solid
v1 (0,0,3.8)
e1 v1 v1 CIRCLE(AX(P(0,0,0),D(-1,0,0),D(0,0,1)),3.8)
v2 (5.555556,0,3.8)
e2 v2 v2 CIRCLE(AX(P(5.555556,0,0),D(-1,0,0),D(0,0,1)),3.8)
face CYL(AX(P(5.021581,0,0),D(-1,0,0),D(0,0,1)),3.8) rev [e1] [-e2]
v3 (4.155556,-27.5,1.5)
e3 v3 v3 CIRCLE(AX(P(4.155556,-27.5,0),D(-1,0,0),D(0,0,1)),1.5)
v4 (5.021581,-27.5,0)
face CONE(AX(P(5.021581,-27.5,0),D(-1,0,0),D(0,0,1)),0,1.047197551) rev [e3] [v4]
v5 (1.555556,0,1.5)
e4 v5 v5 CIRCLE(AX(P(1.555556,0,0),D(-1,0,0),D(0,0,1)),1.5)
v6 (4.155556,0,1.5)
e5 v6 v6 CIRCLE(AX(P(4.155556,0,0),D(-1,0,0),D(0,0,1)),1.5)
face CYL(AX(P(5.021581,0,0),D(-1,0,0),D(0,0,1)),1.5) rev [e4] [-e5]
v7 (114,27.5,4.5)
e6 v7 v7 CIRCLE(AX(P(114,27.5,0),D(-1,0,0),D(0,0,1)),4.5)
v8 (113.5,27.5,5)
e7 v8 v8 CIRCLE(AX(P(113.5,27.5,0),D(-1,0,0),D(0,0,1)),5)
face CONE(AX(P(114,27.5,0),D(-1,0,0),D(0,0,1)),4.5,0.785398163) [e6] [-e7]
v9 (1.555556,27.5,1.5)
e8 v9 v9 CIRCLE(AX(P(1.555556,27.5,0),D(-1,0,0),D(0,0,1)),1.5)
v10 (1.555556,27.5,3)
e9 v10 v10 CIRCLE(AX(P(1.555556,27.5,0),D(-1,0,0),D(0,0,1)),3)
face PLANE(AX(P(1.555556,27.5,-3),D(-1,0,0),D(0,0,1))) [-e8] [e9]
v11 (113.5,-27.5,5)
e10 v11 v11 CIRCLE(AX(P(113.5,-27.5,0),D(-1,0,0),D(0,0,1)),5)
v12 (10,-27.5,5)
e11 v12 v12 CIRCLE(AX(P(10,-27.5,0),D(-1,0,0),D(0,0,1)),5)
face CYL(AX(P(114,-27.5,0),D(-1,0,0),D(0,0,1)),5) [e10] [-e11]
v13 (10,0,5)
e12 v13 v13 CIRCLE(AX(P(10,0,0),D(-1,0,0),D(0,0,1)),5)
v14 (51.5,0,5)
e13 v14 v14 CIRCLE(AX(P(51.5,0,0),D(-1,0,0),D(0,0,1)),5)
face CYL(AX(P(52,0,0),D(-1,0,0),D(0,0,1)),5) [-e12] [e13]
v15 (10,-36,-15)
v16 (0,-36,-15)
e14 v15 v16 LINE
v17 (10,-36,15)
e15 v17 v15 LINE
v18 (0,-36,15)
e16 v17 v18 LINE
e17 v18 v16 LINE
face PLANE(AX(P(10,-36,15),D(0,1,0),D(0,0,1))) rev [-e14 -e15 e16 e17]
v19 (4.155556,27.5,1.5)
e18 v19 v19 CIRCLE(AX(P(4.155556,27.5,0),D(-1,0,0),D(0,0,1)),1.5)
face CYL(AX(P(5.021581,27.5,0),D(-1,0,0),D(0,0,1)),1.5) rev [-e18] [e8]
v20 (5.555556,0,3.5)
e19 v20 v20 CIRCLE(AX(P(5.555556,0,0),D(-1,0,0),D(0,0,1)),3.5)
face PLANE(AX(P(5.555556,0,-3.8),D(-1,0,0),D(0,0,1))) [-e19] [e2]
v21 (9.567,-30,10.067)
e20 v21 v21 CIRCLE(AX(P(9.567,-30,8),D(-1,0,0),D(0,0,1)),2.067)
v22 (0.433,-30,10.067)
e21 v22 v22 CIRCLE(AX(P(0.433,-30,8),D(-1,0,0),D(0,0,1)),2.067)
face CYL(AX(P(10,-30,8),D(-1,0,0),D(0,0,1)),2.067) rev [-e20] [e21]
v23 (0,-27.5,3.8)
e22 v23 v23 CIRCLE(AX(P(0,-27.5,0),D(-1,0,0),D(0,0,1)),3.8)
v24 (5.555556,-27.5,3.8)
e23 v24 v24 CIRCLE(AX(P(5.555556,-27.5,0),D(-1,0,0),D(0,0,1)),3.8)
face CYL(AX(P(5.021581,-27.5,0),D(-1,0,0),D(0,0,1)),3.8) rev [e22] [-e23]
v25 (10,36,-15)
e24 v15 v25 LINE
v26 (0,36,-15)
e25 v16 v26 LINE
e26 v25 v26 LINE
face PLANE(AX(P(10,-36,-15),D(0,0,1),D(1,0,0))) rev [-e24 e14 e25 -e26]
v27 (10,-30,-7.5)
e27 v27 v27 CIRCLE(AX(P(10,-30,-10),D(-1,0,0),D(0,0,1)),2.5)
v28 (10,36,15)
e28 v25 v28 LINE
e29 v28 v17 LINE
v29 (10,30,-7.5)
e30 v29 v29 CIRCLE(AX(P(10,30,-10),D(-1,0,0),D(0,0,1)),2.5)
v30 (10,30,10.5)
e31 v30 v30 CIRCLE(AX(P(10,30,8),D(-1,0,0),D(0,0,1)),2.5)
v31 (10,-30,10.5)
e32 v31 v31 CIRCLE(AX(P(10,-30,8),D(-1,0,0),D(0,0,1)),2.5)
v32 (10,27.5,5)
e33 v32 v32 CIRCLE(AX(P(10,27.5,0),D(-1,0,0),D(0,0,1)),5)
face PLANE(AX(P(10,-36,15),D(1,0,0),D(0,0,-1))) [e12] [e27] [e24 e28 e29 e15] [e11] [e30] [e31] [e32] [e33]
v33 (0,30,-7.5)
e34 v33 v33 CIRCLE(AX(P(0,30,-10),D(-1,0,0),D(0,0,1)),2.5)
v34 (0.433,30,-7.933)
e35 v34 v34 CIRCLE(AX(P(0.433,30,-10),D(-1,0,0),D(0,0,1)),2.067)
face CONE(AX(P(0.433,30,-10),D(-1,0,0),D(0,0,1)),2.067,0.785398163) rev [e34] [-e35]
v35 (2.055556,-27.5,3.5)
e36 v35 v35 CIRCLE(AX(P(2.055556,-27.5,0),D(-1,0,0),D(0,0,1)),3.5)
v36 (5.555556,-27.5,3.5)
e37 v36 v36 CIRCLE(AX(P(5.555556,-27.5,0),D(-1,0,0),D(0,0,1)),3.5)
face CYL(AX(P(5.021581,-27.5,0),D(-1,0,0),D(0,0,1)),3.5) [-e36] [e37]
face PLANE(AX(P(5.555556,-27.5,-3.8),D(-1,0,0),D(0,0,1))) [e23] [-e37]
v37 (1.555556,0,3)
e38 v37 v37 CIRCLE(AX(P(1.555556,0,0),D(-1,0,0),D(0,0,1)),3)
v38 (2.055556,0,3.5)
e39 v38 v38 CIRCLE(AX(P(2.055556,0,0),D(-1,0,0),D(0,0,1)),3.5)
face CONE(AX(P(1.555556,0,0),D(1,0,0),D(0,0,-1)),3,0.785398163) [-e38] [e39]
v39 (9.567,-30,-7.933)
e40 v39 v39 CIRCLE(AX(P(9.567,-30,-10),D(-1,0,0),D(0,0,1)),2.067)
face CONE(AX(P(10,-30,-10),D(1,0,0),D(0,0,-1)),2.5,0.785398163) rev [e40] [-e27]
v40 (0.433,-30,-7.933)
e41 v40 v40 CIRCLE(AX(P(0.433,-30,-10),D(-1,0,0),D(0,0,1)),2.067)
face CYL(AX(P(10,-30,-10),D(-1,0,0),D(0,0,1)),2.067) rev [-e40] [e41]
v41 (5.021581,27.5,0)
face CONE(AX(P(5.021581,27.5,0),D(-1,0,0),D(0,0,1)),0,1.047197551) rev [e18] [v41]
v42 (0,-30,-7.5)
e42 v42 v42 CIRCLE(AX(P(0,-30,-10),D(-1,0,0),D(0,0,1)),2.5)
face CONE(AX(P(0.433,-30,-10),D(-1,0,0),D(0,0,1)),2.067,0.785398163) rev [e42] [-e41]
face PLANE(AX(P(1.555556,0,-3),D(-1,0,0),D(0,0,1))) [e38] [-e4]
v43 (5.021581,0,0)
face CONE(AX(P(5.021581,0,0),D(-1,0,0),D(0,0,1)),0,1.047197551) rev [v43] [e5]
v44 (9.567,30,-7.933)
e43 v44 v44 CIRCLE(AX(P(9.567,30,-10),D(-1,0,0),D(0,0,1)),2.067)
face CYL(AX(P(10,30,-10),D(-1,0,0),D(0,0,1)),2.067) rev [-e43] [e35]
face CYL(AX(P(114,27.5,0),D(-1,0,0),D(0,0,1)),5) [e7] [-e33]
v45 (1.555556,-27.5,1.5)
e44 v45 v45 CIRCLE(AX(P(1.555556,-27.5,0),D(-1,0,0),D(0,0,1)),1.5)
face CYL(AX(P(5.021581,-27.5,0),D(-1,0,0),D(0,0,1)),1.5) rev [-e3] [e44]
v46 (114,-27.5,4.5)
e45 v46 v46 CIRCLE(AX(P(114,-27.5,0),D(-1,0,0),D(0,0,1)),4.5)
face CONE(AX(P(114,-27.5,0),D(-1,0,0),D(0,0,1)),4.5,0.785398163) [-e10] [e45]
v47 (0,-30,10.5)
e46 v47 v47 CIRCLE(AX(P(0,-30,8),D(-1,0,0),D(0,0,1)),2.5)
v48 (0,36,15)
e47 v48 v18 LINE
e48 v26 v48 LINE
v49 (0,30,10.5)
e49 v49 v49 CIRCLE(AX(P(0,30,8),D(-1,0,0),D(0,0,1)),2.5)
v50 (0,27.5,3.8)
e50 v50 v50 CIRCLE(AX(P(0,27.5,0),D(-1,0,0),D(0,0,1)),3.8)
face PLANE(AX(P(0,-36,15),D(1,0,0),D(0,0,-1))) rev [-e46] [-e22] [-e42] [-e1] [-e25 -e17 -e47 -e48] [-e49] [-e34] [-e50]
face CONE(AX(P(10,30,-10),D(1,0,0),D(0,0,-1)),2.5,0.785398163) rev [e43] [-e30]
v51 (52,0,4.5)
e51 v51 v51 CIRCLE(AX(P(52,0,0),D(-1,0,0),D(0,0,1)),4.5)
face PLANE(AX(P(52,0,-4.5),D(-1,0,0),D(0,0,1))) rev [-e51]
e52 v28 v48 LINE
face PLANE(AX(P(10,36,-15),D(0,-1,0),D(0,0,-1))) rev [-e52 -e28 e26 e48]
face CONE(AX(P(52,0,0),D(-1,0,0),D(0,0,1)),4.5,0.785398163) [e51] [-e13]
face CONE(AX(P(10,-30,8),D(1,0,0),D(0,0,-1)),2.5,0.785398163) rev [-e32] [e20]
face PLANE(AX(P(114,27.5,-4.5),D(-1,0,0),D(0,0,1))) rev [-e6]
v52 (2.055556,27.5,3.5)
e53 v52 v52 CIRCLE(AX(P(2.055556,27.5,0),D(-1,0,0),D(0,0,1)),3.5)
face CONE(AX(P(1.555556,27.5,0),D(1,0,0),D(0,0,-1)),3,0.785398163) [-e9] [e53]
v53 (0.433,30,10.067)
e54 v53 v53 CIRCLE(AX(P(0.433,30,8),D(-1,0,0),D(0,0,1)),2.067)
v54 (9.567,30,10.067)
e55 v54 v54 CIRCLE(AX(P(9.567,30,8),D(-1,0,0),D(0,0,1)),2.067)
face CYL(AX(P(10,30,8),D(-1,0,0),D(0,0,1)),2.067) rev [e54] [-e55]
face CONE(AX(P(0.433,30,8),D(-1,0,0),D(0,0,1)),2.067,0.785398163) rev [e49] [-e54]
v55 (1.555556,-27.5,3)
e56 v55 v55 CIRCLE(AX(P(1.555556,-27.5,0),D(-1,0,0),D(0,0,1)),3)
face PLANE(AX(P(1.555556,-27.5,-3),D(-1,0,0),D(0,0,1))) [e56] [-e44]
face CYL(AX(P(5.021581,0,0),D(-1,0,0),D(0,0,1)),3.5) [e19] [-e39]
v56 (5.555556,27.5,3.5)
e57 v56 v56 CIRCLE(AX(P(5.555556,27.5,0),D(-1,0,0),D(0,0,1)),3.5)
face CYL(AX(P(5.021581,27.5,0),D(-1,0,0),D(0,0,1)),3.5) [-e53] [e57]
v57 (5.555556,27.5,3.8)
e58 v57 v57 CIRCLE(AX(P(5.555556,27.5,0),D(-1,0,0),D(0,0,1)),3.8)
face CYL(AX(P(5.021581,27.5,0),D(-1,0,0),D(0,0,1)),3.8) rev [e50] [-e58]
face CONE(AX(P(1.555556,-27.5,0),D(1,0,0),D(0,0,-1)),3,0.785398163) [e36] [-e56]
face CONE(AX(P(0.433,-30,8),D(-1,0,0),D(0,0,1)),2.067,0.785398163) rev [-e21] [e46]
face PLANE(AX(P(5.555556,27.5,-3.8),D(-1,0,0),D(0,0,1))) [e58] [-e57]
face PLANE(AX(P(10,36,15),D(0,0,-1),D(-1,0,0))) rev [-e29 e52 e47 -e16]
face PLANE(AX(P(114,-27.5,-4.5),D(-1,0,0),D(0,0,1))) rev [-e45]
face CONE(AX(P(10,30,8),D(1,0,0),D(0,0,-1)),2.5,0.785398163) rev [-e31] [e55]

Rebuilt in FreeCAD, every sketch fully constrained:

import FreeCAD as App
import Part
import Sketcher
from FreeCAD import Vector
Q = App.Units.Quantity

doc = App.newDocument("Part")
body = doc.addObject("PartDesign::Body", "Body")

# Sketch on YZ plane
sketch1 = doc.addObject("Sketcher::SketchObject", "Sketch")
body.addObject(sketch1)
sketch1.AttachmentSupport = (doc.YZ_Plane, [""])
sketch1.MapMode = "FlatFace"
sketch1.addGeometry(Part.LineSegment(Vector(36, 15, 0), Vector(-36, 15, 0)), False)
sketch1.addGeometry(Part.LineSegment(Vector(-36, 15, 0), Vector(-36, -15, 0)), False)
sketch1.addGeometry(Part.LineSegment(Vector(-36, -15, 0), Vector(36, -15, 0)), False)
sketch1.addGeometry(Part.LineSegment(Vector(36, -15, 0), Vector(36, 15, 0)), False)
sketch1.addConstraint(Sketcher.Constraint("Coincident", 0, 2, 1, 1))
sketch1.addConstraint(Sketcher.Constraint("Coincident", 1, 2, 2, 1))
sketch1.addConstraint(Sketcher.Constraint("Coincident", 2, 2, 3, 1))
sketch1.addConstraint(Sketcher.Constraint("Coincident", 3, 2, 0, 1))
sketch1.addConstraint(Sketcher.Constraint("Horizontal", 0))
sketch1.addConstraint(Sketcher.Constraint("Vertical", 1))
sketch1.addConstraint(Sketcher.Constraint("Horizontal", 2))
sketch1.addConstraint(Sketcher.Constraint("Vertical", 3))
sketch1.addConstraint(Sketcher.Constraint("Symmetric", 0, 2, 2, 2, -1, 1))
sketch1.addConstraint(Sketcher.Constraint("DistanceX", 0, 2, 0, 1, 72.0))
sketch1.addConstraint(Sketcher.Constraint("DistanceY", 1, 2, 1, 1, 30.0))
pad1 = doc.addObject("PartDesign::Pad", "Pad")
body.addObject(pad1)
pad1.Profile = sketch1
pad1.Length = 10

# Sketch on XZ plane
sketch2 = doc.addObject("Sketcher::SketchObject", "Sketch001")
body.addObject(sketch2)
sketch2.AttachmentSupport = (doc.XZ_Plane, [""])
sketch2.MapMode = "FlatFace"
sketch2.AttachmentOffset = App.Placement(Vector(0, 0, -30), App.Rotation())
sketch2.addGeometry(Part.LineSegment(Vector(0, -12.5, 0), Vector(0, -10, 0)), False)
sketch2.addGeometry(Part.LineSegment(Vector(0, -10, 0), Vector(10, -10, 0)), False)
sketch2.addGeometry(Part.LineSegment(Vector(10, -10, 0), Vector(10, -12.5, 0)), False)
sketch2.addGeometry(Part.LineSegment(Vector(10, -12.5, 0), Vector(9.6, -12.1, 0)), False)
sketch2.addGeometry(Part.LineSegment(Vector(9.6, -12.1, 0), Vector(0.4, -12.1, 0)), False)
sketch2.addGeometry(Part.LineSegment(Vector(0.4, -12.1, 0), Vector(0, -12.5, 0)), False)
sketch2.addGeometry(Part.LineSegment(Vector(10, -10, 0), Vector(0, -10, 0)), True)  # axis
sketch2.addConstraint(Sketcher.Constraint("Coincident", 0, 2, 1, 1))
sketch2.addConstraint(Sketcher.Constraint("Coincident", 1, 2, 2, 1))
sketch2.addConstraint(Sketcher.Constraint("Coincident", 2, 2, 3, 1))
sketch2.addConstraint(Sketcher.Constraint("Coincident", 3, 2, 4, 1))
sketch2.addConstraint(Sketcher.Constraint("Coincident", 4, 2, 5, 1))
sketch2.addConstraint(Sketcher.Constraint("Coincident", 5, 2, 0, 1))
sketch2.addConstraint(Sketcher.Constraint("Vertical", 0))
sketch2.addConstraint(Sketcher.Constraint("Horizontal", 1))
sketch2.addConstraint(Sketcher.Constraint("Vertical", 2))
sketch2.addConstraint(Sketcher.Constraint("Horizontal", 4))
sketch2.addConstraint(Sketcher.Constraint("Horizontal", 6))
sketch2.addConstraint(Sketcher.Constraint("Coincident", 6, 1, 1, 2))
sketch2.addConstraint(Sketcher.Constraint("PointOnObject", 0, 2, -2))
sketch2.addConstraint(Sketcher.Constraint("PointOnObject", 6, 2, -2))
sketch2.addConstraint(Sketcher.Constraint("Perpendicular", 3, 5))
sketch2.addConstraint(Sketcher.Constraint("Horizontal", 2, 2, 5, 2))
sketch2.addConstraint(Sketcher.Constraint("Equal", 3, 5))
sketch2.addConstraint(Sketcher.Constraint("DistanceX", 1, 1, 1, 2, 10.0))
sketch2.addConstraint(Sketcher.Constraint("DistanceY", 0, 1, 0, 2, 2.5))
sketch2.addConstraint(Sketcher.Constraint("DistanceY", 0, 2, -1, 1, 10.0))
sketch2.addConstraint(Sketcher.Constraint("DistanceX", 4, 2, 4, 1, 9.134))
groove = doc.addObject("PartDesign::Groove", "Groove")
body.addObject(groove)
groove.Profile = sketch2
groove.ReferenceAxis = (sketch2, ["Axis0"])
groove.Angle = 360

# Sketch on XZ plane
sketch3 = doc.addObject("Sketcher::SketchObject", "Sketch002")
body.addObject(sketch3)
sketch3.AttachmentSupport = (doc.XZ_Plane, [""])
sketch3.MapMode = "FlatFace"
sketch3.AttachmentOffset = App.Placement(Vector(0, 0, -30), App.Rotation())
sketch3.addGeometry(Part.LineSegment(Vector(0, 5.5, 0), Vector(0, 8, 0)), False)
sketch3.addGeometry(Part.LineSegment(Vector(0, 8, 0), Vector(10, 8, 0)), False)
sketch3.addGeometry(Part.LineSegment(Vector(10, 8, 0), Vector(10, 5.5, 0)), False)
sketch3.addGeometry(Part.LineSegment(Vector(10, 5.5, 0), Vector(9.6, 5.9, 0)), False)
sketch3.addGeometry(Part.LineSegment(Vector(9.6, 5.9, 0), Vector(0.4, 5.9, 0)), False)
sketch3.addGeometry(Part.LineSegment(Vector(0.4, 5.9, 0), Vector(0, 5.5, 0)), False)
sketch3.addGeometry(Part.LineSegment(Vector(10, 8, 0), Vector(0, 8, 0)), True)  # axis
sketch3.addConstraint(Sketcher.Constraint("Coincident", 0, 2, 1, 1))
sketch3.addConstraint(Sketcher.Constraint("Coincident", 1, 2, 2, 1))
sketch3.addConstraint(Sketcher.Constraint("Coincident", 2, 2, 3, 1))
sketch3.addConstraint(Sketcher.Constraint("Coincident", 3, 2, 4, 1))
sketch3.addConstraint(Sketcher.Constraint("Coincident", 4, 2, 5, 1))
sketch3.addConstraint(Sketcher.Constraint("Coincident", 5, 2, 0, 1))
sketch3.addConstraint(Sketcher.Constraint("Vertical", 0))
sketch3.addConstraint(Sketcher.Constraint("Horizontal", 1))
sketch3.addConstraint(Sketcher.Constraint("Vertical", 2))
sketch3.addConstraint(Sketcher.Constraint("Horizontal", 4))
sketch3.addConstraint(Sketcher.Constraint("Horizontal", 6))
sketch3.addConstraint(Sketcher.Constraint("Coincident", 6, 1, 1, 2))
sketch3.addConstraint(Sketcher.Constraint("PointOnObject", 0, 2, -2))
sketch3.addConstraint(Sketcher.Constraint("PointOnObject", 6, 2, -2))
sketch3.addConstraint(Sketcher.Constraint("Perpendicular", 3, 5))
sketch3.addConstraint(Sketcher.Constraint("Horizontal", 2, 2, 5, 2))
sketch3.addConstraint(Sketcher.Constraint("Equal", 3, 5))
sketch3.addConstraint(Sketcher.Constraint("DistanceX", 1, 1, 1, 2, 10.0))
sketch3.addConstraint(Sketcher.Constraint("DistanceY", 0, 1, 0, 2, 2.5))
sketch3.addConstraint(Sketcher.Constraint("DistanceY", -1, 1, 0, 2, 8.0))
sketch3.addConstraint(Sketcher.Constraint("DistanceX", 4, 2, 4, 1, 9.134))
groove2 = doc.addObject("PartDesign::Groove", "Groove001")
body.addObject(groove2)
groove2.Profile = sketch3
groove2.ReferenceAxis = (sketch3, ["Axis0"])
groove2.Angle = 360

# Sketch on XZ plane
sketch4 = doc.addObject("Sketcher::SketchObject", "Sketch003")
body.addObject(sketch4)
sketch4.AttachmentSupport = (doc.XZ_Plane, [""])
sketch4.MapMode = "FlatFace"
sketch4.AttachmentOffset = App.Placement(Vector(0, 0, 30), App.Rotation())
sketch4.addGeometry(Part.LineSegment(Vector(0, 5.5, 0), Vector(0, 8, 0)), False)
sketch4.addGeometry(Part.LineSegment(Vector(0, 8, 0), Vector(10, 8, 0)), False)
sketch4.addGeometry(Part.LineSegment(Vector(10, 8, 0), Vector(10, 5.5, 0)), False)
sketch4.addGeometry(Part.LineSegment(Vector(10, 5.5, 0), Vector(9.6, 5.9, 0)), False)
sketch4.addGeometry(Part.LineSegment(Vector(9.6, 5.9, 0), Vector(0.4, 5.9, 0)), False)
sketch4.addGeometry(Part.LineSegment(Vector(0.4, 5.9, 0), Vector(0, 5.5, 0)), False)
sketch4.addGeometry(Part.LineSegment(Vector(10, 8, 0), Vector(0, 8, 0)), True)  # axis
sketch4.addConstraint(Sketcher.Constraint("Coincident", 0, 2, 1, 1))
sketch4.addConstraint(Sketcher.Constraint("Coincident", 1, 2, 2, 1))
sketch4.addConstraint(Sketcher.Constraint("Coincident", 2, 2, 3, 1))
sketch4.addConstraint(Sketcher.Constraint("Coincident", 3, 2, 4, 1))
sketch4.addConstraint(Sketcher.Constraint("Coincident", 4, 2, 5, 1))
sketch4.addConstraint(Sketcher.Constraint("Coincident", 5, 2, 0, 1))
sketch4.addConstraint(Sketcher.Constraint("Vertical", 0))
sketch4.addConstraint(Sketcher.Constraint("Horizontal", 1))
sketch4.addConstraint(Sketcher.Constraint("Vertical", 2))
sketch4.addConstraint(Sketcher.Constraint("Horizontal", 4))
sketch4.addConstraint(Sketcher.Constraint("Horizontal", 6))
sketch4.addConstraint(Sketcher.Constraint("Coincident", 6, 1, 1, 2))
sketch4.addConstraint(Sketcher.Constraint("PointOnObject", 0, 2, -2))
sketch4.addConstraint(Sketcher.Constraint("PointOnObject", 6, 2, -2))
sketch4.addConstraint(Sketcher.Constraint("Perpendicular", 3, 5))
sketch4.addConstraint(Sketcher.Constraint("Horizontal", 2, 2, 5, 2))
sketch4.addConstraint(Sketcher.Constraint("Equal", 3, 5))
sketch4.addConstraint(Sketcher.Constraint("DistanceX", 1, 1, 1, 2, 10.0))
sketch4.addConstraint(Sketcher.Constraint("DistanceY", 0, 1, 0, 2, 2.5))
sketch4.addConstraint(Sketcher.Constraint("DistanceY", -1, 1, 0, 2, 8.0))
sketch4.addConstraint(Sketcher.Constraint("DistanceX", 4, 2, 4, 1, 9.134))
groove3 = doc.addObject("PartDesign::Groove", "Groove002")
body.addObject(groove3)
groove3.Profile = sketch4
groove3.ReferenceAxis = (sketch4, ["Axis0"])
groove3.Angle = 360

# Sketch on XZ plane
sketch5 = doc.addObject("Sketcher::SketchObject", "Sketch004")
body.addObject(sketch5)
sketch5.AttachmentSupport = (doc.XZ_Plane, [""])
sketch5.MapMode = "FlatFace"
sketch5.AttachmentOffset = App.Placement(Vector(0, 0, 30), App.Rotation())
sketch5.addGeometry(Part.LineSegment(Vector(0, -12.5, 0), Vector(0, -10, 0)), False)
sketch5.addGeometry(Part.LineSegment(Vector(0, -10, 0), Vector(10, -10, 0)), False)
sketch5.addGeometry(Part.LineSegment(Vector(10, -10, 0), Vector(10, -12.5, 0)), False)
sketch5.addGeometry(Part.LineSegment(Vector(10, -12.5, 0), Vector(9.6, -12.1, 0)), False)
sketch5.addGeometry(Part.LineSegment(Vector(9.6, -12.1, 0), Vector(0.4, -12.1, 0)), False)
sketch5.addGeometry(Part.LineSegment(Vector(0.4, -12.1, 0), Vector(0, -12.5, 0)), False)
sketch5.addGeometry(Part.LineSegment(Vector(10, -10, 0), Vector(0, -10, 0)), True)  # axis
sketch5.addConstraint(Sketcher.Constraint("Coincident", 0, 2, 1, 1))
sketch5.addConstraint(Sketcher.Constraint("Coincident", 1, 2, 2, 1))
sketch5.addConstraint(Sketcher.Constraint("Coincident", 2, 2, 3, 1))
sketch5.addConstraint(Sketcher.Constraint("Coincident", 3, 2, 4, 1))
sketch5.addConstraint(Sketcher.Constraint("Coincident", 4, 2, 5, 1))
sketch5.addConstraint(Sketcher.Constraint("Coincident", 5, 2, 0, 1))
sketch5.addConstraint(Sketcher.Constraint("Vertical", 0))
sketch5.addConstraint(Sketcher.Constraint("Horizontal", 1))
sketch5.addConstraint(Sketcher.Constraint("Vertical", 2))
sketch5.addConstraint(Sketcher.Constraint("Horizontal", 4))
sketch5.addConstraint(Sketcher.Constraint("Horizontal", 6))
sketch5.addConstraint(Sketcher.Constraint("Coincident", 6, 1, 1, 2))
sketch5.addConstraint(Sketcher.Constraint("PointOnObject", 0, 2, -2))
sketch5.addConstraint(Sketcher.Constraint("PointOnObject", 6, 2, -2))
sketch5.addConstraint(Sketcher.Constraint("Perpendicular", 3, 5))
sketch5.addConstraint(Sketcher.Constraint("Horizontal", 2, 2, 5, 2))
sketch5.addConstraint(Sketcher.Constraint("Equal", 3, 5))
sketch5.addConstraint(Sketcher.Constraint("DistanceX", 1, 1, 1, 2, 10.0))
sketch5.addConstraint(Sketcher.Constraint("DistanceY", 0, 1, 0, 2, 2.5))
sketch5.addConstraint(Sketcher.Constraint("DistanceY", 0, 2, -1, 1, 10.0))
sketch5.addConstraint(Sketcher.Constraint("DistanceX", 4, 2, 4, 1, 9.134))
groove4 = doc.addObject("PartDesign::Groove", "Groove003")
body.addObject(groove4)
groove4.Profile = sketch5
groove4.ReferenceAxis = (sketch5, ["Axis0"])
groove4.Angle = 360

# Sketch on XZ plane
sketch6 = doc.addObject("Sketcher::SketchObject", "Sketch005")
body.addObject(sketch6)
sketch6.AttachmentSupport = (doc.XZ_Plane, [""])
sketch6.MapMode = "FlatFace"
sketch6.AttachmentOffset = App.Placement(Vector(0, 0, -27.5), App.Rotation())
sketch6.addGeometry(Part.LineSegment(Vector(0, -3.8, 0), Vector(0, 0, 0)), False)
sketch6.addGeometry(Part.LineSegment(Vector(0, 0, 0), Vector(5.02, 0, 0)), False)
sketch6.addGeometry(Part.LineSegment(Vector(5.02, 0, 0), Vector(4.16, -1.5, 0)), False)
sketch6.addGeometry(Part.LineSegment(Vector(4.16, -1.5, 0), Vector(1.56, -1.5, 0)), False)
sketch6.addGeometry(Part.LineSegment(Vector(1.56, -1.5, 0), Vector(1.56, -3, 0)), False)
sketch6.addGeometry(Part.LineSegment(Vector(1.56, -3, 0), Vector(2.06, -3.5, 0)), False)
sketch6.addGeometry(Part.LineSegment(Vector(2.06, -3.5, 0), Vector(5.56, -3.5, 0)), False)
sketch6.addGeometry(Part.LineSegment(Vector(5.56, -3.5, 0), Vector(5.56, -3.8, 0)), False)
sketch6.addGeometry(Part.LineSegment(Vector(5.56, -3.8, 0), Vector(0, -3.8, 0)), False)
sketch6.addConstraint(Sketcher.Constraint("Coincident", 0, 2, 1, 1))
sketch6.addConstraint(Sketcher.Constraint("Coincident", 1, 2, 2, 1))
sketch6.addConstraint(Sketcher.Constraint("Coincident", 2, 2, 3, 1))
sketch6.addConstraint(Sketcher.Constraint("Coincident", 3, 2, 4, 1))
sketch6.addConstraint(Sketcher.Constraint("Coincident", 4, 2, 5, 1))
sketch6.addConstraint(Sketcher.Constraint("Coincident", 5, 2, 6, 1))
sketch6.addConstraint(Sketcher.Constraint("Coincident", 6, 2, 7, 1))
sketch6.addConstraint(Sketcher.Constraint("Coincident", 7, 2, 8, 1))
sketch6.addConstraint(Sketcher.Constraint("Coincident", 8, 2, 0, 1))
sketch6.addConstraint(Sketcher.Constraint("Vertical", 0))
sketch6.addConstraint(Sketcher.Constraint("Horizontal", 1))
sketch6.addConstraint(Sketcher.Constraint("Horizontal", 3))
sketch6.addConstraint(Sketcher.Constraint("Vertical", 4))
sketch6.addConstraint(Sketcher.Constraint("Horizontal", 6))
sketch6.addConstraint(Sketcher.Constraint("Vertical", 7))
sketch6.addConstraint(Sketcher.Constraint("Horizontal", 8))
sketch6.addConstraint(Sketcher.Constraint("Coincident", 0, 2, -1, 1))
sketch6.addConstraint(Sketcher.Constraint("Angle", 2, Q("-120 deg")))
sketch6.addConstraint(Sketcher.Constraint("Angle", 5, Q("-45 deg")))
sketch6.addConstraint(Sketcher.Constraint("DistanceX", 3, 2, 3, 1, 2.6))
sketch6.addConstraint(Sketcher.Constraint("DistanceX", 6, 1, 6, 2, 3.5))
sketch6.addConstraint(Sketcher.Constraint("DistanceY", 0, 1, 0, 2, 3.8))
sketch6.addConstraint(Sketcher.Constraint("DistanceY", 4, 2, 4, 1, 1.5))
sketch6.addConstraint(Sketcher.Constraint("DistanceY", 7, 2, 7, 1, 0.3))
sketch6.addConstraint(Sketcher.Constraint("DistanceY", 4, 2, -1, 1, 3.0))
sketch6.addConstraint(Sketcher.Constraint("DistanceX", 1, 1, 1, 2, 5.021581))
groove5 = doc.addObject("PartDesign::Groove", "Groove004")
body.addObject(groove5)
groove5.Profile = sketch6
groove5.ReferenceAxis = (sketch6, ["H_Axis"])
groove5.Angle = 360

# Sketch on XZ plane
sketch7 = doc.addObject("Sketcher::SketchObject", "Sketch006")
body.addObject(sketch7)
sketch7.AttachmentSupport = (doc.XZ_Plane, [""])
sketch7.MapMode = "FlatFace"
sketch7.addGeometry(Part.LineSegment(Vector(0, -3.8, 0), Vector(0, 0, 0)), False)
sketch7.addGeometry(Part.LineSegment(Vector(0, 0, 0), Vector(5.02, 0, 0)), False)
sketch7.addGeometry(Part.LineSegment(Vector(5.02, 0, 0), Vector(4.16, -1.5, 0)), False)
sketch7.addGeometry(Part.LineSegment(Vector(4.16, -1.5, 0), Vector(1.56, -1.5, 0)), False)
sketch7.addGeometry(Part.LineSegment(Vector(1.56, -1.5, 0), Vector(1.56, -3, 0)), False)
sketch7.addGeometry(Part.LineSegment(Vector(1.56, -3, 0), Vector(2.06, -3.5, 0)), False)
sketch7.addGeometry(Part.LineSegment(Vector(2.06, -3.5, 0), Vector(5.56, -3.5, 0)), False)
sketch7.addGeometry(Part.LineSegment(Vector(5.56, -3.5, 0), Vector(5.56, -3.8, 0)), False)
sketch7.addGeometry(Part.LineSegment(Vector(5.56, -3.8, 0), Vector(0, -3.8, 0)), False)
sketch7.addConstraint(Sketcher.Constraint("Coincident", 0, 2, 1, 1))
sketch7.addConstraint(Sketcher.Constraint("Coincident", 1, 2, 2, 1))
sketch7.addConstraint(Sketcher.Constraint("Coincident", 2, 2, 3, 1))
sketch7.addConstraint(Sketcher.Constraint("Coincident", 3, 2, 4, 1))
sketch7.addConstraint(Sketcher.Constraint("Coincident", 4, 2, 5, 1))
sketch7.addConstraint(Sketcher.Constraint("Coincident", 5, 2, 6, 1))
sketch7.addConstraint(Sketcher.Constraint("Coincident", 6, 2, 7, 1))
sketch7.addConstraint(Sketcher.Constraint("Coincident", 7, 2, 8, 1))
sketch7.addConstraint(Sketcher.Constraint("Coincident", 8, 2, 0, 1))
sketch7.addConstraint(Sketcher.Constraint("Vertical", 0))
sketch7.addConstraint(Sketcher.Constraint("Horizontal", 1))
sketch7.addConstraint(Sketcher.Constraint("Horizontal", 3))
sketch7.addConstraint(Sketcher.Constraint("Vertical", 4))
sketch7.addConstraint(Sketcher.Constraint("Horizontal", 6))
sketch7.addConstraint(Sketcher.Constraint("Vertical", 7))
sketch7.addConstraint(Sketcher.Constraint("Horizontal", 8))
sketch7.addConstraint(Sketcher.Constraint("Coincident", 0, 2, -1, 1))
sketch7.addConstraint(Sketcher.Constraint("Angle", 2, Q("-120 deg")))
sketch7.addConstraint(Sketcher.Constraint("Angle", 5, Q("-45 deg")))
sketch7.addConstraint(Sketcher.Constraint("DistanceX", 3, 2, 3, 1, 2.6))
sketch7.addConstraint(Sketcher.Constraint("DistanceX", 6, 1, 6, 2, 3.5))
sketch7.addConstraint(Sketcher.Constraint("DistanceY", 0, 1, 0, 2, 3.8))
sketch7.addConstraint(Sketcher.Constraint("DistanceY", 4, 2, 4, 1, 1.5))
sketch7.addConstraint(Sketcher.Constraint("DistanceY", 7, 2, 7, 1, 0.3))
sketch7.addConstraint(Sketcher.Constraint("DistanceY", 4, 2, -1, 1, 3.0))
sketch7.addConstraint(Sketcher.Constraint("DistanceX", 1, 1, 1, 2, 5.021581))
groove6 = doc.addObject("PartDesign::Groove", "Groove005")
body.addObject(groove6)
groove6.Profile = sketch7
groove6.ReferenceAxis = (sketch7, ["H_Axis"])
groove6.Angle = 360

# Sketch on XZ plane
sketch8 = doc.addObject("Sketcher::SketchObject", "Sketch007")
body.addObject(sketch8)
sketch8.AttachmentSupport = (doc.XZ_Plane, [""])
sketch8.MapMode = "FlatFace"
sketch8.AttachmentOffset = App.Placement(Vector(0, 0, 27.5), App.Rotation())
sketch8.addGeometry(Part.LineSegment(Vector(0, -3.8, 0), Vector(0, 0, 0)), False)
sketch8.addGeometry(Part.LineSegment(Vector(0, 0, 0), Vector(5.02, 0, 0)), False)
sketch8.addGeometry(Part.LineSegment(Vector(5.02, 0, 0), Vector(4.16, -1.5, 0)), False)
sketch8.addGeometry(Part.LineSegment(Vector(4.16, -1.5, 0), Vector(1.56, -1.5, 0)), False)
sketch8.addGeometry(Part.LineSegment(Vector(1.56, -1.5, 0), Vector(1.56, -3, 0)), False)
sketch8.addGeometry(Part.LineSegment(Vector(1.56, -3, 0), Vector(2.06, -3.5, 0)), False)
sketch8.addGeometry(Part.LineSegment(Vector(2.06, -3.5, 0), Vector(5.56, -3.5, 0)), False)
sketch8.addGeometry(Part.LineSegment(Vector(5.56, -3.5, 0), Vector(5.56, -3.8, 0)), False)
sketch8.addGeometry(Part.LineSegment(Vector(5.56, -3.8, 0), Vector(0, -3.8, 0)), False)
sketch8.addConstraint(Sketcher.Constraint("Coincident", 0, 2, 1, 1))
sketch8.addConstraint(Sketcher.Constraint("Coincident", 1, 2, 2, 1))
sketch8.addConstraint(Sketcher.Constraint("Coincident", 2, 2, 3, 1))
sketch8.addConstraint(Sketcher.Constraint("Coincident", 3, 2, 4, 1))
sketch8.addConstraint(Sketcher.Constraint("Coincident", 4, 2, 5, 1))
sketch8.addConstraint(Sketcher.Constraint("Coincident", 5, 2, 6, 1))
sketch8.addConstraint(Sketcher.Constraint("Coincident", 6, 2, 7, 1))
sketch8.addConstraint(Sketcher.Constraint("Coincident", 7, 2, 8, 1))
sketch8.addConstraint(Sketcher.Constraint("Coincident", 8, 2, 0, 1))
sketch8.addConstraint(Sketcher.Constraint("Vertical", 0))
sketch8.addConstraint(Sketcher.Constraint("Horizontal", 1))
sketch8.addConstraint(Sketcher.Constraint("Horizontal", 3))
sketch8.addConstraint(Sketcher.Constraint("Vertical", 4))
sketch8.addConstraint(Sketcher.Constraint("Horizontal", 6))
sketch8.addConstraint(Sketcher.Constraint("Vertical", 7))
sketch8.addConstraint(Sketcher.Constraint("Horizontal", 8))
sketch8.addConstraint(Sketcher.Constraint("Coincident", 0, 2, -1, 1))
sketch8.addConstraint(Sketcher.Constraint("Angle", 2, Q("-120 deg")))
sketch8.addConstraint(Sketcher.Constraint("Angle", 5, Q("-45 deg")))
sketch8.addConstraint(Sketcher.Constraint("DistanceX", 3, 2, 3, 1, 2.6))
sketch8.addConstraint(Sketcher.Constraint("DistanceX", 6, 1, 6, 2, 3.5))
sketch8.addConstraint(Sketcher.Constraint("DistanceY", 0, 1, 0, 2, 3.8))
sketch8.addConstraint(Sketcher.Constraint("DistanceY", 4, 2, 4, 1, 1.5))
sketch8.addConstraint(Sketcher.Constraint("DistanceY", 7, 2, 7, 1, 0.3))
sketch8.addConstraint(Sketcher.Constraint("DistanceY", 4, 2, -1, 1, 3.0))
sketch8.addConstraint(Sketcher.Constraint("DistanceX", 1, 1, 1, 2, 5.021581))
groove7 = doc.addObject("PartDesign::Groove", "Groove006")
body.addObject(groove7)
groove7.Profile = sketch8
groove7.ReferenceAxis = (sketch8, ["H_Axis"])
groove7.Angle = 360

# Sketch on XZ plane
sketch9 = doc.addObject("Sketcher::SketchObject", "Sketch008")
body.addObject(sketch9)
sketch9.AttachmentSupport = (doc.XZ_Plane, [""])
sketch9.MapMode = "FlatFace"
sketch9.addGeometry(Part.LineSegment(Vector(10, -5, 0), Vector(10, 0, 0)), False)
sketch9.addGeometry(Part.LineSegment(Vector(10, 0, 0), Vector(52, 0, 0)), False)
sketch9.addGeometry(Part.LineSegment(Vector(52, 0, 0), Vector(52, -4.5, 0)), False)
sketch9.addGeometry(Part.LineSegment(Vector(52, -4.5, 0), Vector(51.5, -5, 0)), False)
sketch9.addGeometry(Part.LineSegment(Vector(51.5, -5, 0), Vector(10, -5, 0)), False)
sketch9.addConstraint(Sketcher.Constraint("Coincident", 0, 2, 1, 1))
sketch9.addConstraint(Sketcher.Constraint("Coincident", 1, 2, 2, 1))
sketch9.addConstraint(Sketcher.Constraint("Coincident", 2, 2, 3, 1))
sketch9.addConstraint(Sketcher.Constraint("Coincident", 3, 2, 4, 1))
sketch9.addConstraint(Sketcher.Constraint("Coincident", 4, 2, 0, 1))
sketch9.addConstraint(Sketcher.Constraint("Vertical", 0))
sketch9.addConstraint(Sketcher.Constraint("Horizontal", 1))
sketch9.addConstraint(Sketcher.Constraint("Vertical", 2))
sketch9.addConstraint(Sketcher.Constraint("Horizontal", 4))
sketch9.addConstraint(Sketcher.Constraint("PointOnObject", 0, 2, -1))
sketch9.addConstraint(Sketcher.Constraint("DistanceX", 1, 1, 1, 2, 42.0))
sketch9.addConstraint(Sketcher.Constraint("DistanceY", 0, 1, 0, 2, 5.0))
sketch9.addConstraint(Sketcher.Constraint("Angle", 3, Q("-135 deg")))
sketch9.addConstraint(Sketcher.Constraint("DistanceX", 4, 2, 4, 1, 41.5))
sketch9.addConstraint(Sketcher.Constraint("DistanceX", -1, 1, 0, 2, 10.0))
revolution = doc.addObject("PartDesign::Revolution", "Revolution")
body.addObject(revolution)
revolution.Profile = sketch9
revolution.ReferenceAxis = (sketch9, ["H_Axis"])
revolution.Angle = 360

# Sketch on XZ plane
sketch10 = doc.addObject("Sketcher::SketchObject", "Sketch009")
body.addObject(sketch10)
sketch10.AttachmentSupport = (doc.XZ_Plane, [""])
sketch10.MapMode = "FlatFace"
sketch10.AttachmentOffset = App.Placement(Vector(0, 0, 27.5), App.Rotation())
sketch10.addGeometry(Part.LineSegment(Vector(10, -5, 0), Vector(10, 0, 0)), False)
sketch10.addGeometry(Part.LineSegment(Vector(10, 0, 0), Vector(114, 0, 0)), False)
sketch10.addGeometry(Part.LineSegment(Vector(114, 0, 0), Vector(114, -4.5, 0)), False)
sketch10.addGeometry(Part.LineSegment(Vector(114, -4.5, 0), Vector(113.5, -5, 0)), False)
sketch10.addGeometry(Part.LineSegment(Vector(113.5, -5, 0), Vector(10, -5, 0)), False)
sketch10.addConstraint(Sketcher.Constraint("Coincident", 0, 2, 1, 1))
sketch10.addConstraint(Sketcher.Constraint("Coincident", 1, 2, 2, 1))
sketch10.addConstraint(Sketcher.Constraint("Coincident", 2, 2, 3, 1))
sketch10.addConstraint(Sketcher.Constraint("Coincident", 3, 2, 4, 1))
sketch10.addConstraint(Sketcher.Constraint("Coincident", 4, 2, 0, 1))
sketch10.addConstraint(Sketcher.Constraint("Vertical", 0))
sketch10.addConstraint(Sketcher.Constraint("Horizontal", 1))
sketch10.addConstraint(Sketcher.Constraint("Vertical", 2))
sketch10.addConstraint(Sketcher.Constraint("Horizontal", 4))
sketch10.addConstraint(Sketcher.Constraint("PointOnObject", 0, 2, -1))
sketch10.addConstraint(Sketcher.Constraint("DistanceX", 1, 1, 1, 2, 104.0))
sketch10.addConstraint(Sketcher.Constraint("DistanceY", 0, 1, 0, 2, 5.0))
sketch10.addConstraint(Sketcher.Constraint("Angle", 3, Q("-135 deg")))
sketch10.addConstraint(Sketcher.Constraint("DistanceX", 4, 2, 4, 1, 103.5))
sketch10.addConstraint(Sketcher.Constraint("DistanceX", -1, 1, 0, 2, 10.0))
revolution2 = doc.addObject("PartDesign::Revolution", "Revolution001")
body.addObject(revolution2)
revolution2.Profile = sketch10
revolution2.ReferenceAxis = (sketch10, ["H_Axis"])
revolution2.Angle = 360

# Sketch on XZ plane
sketch11 = doc.addObject("Sketcher::SketchObject", "Sketch010")
body.addObject(sketch11)
sketch11.AttachmentSupport = (doc.XZ_Plane, [""])
sketch11.MapMode = "FlatFace"
sketch11.AttachmentOffset = App.Placement(Vector(0, 0, -27.5), App.Rotation())
sketch11.addGeometry(Part.LineSegment(Vector(10, -5, 0), Vector(10, 0, 0)), False)
sketch11.addGeometry(Part.LineSegment(Vector(10, 0, 0), Vector(114, 0, 0)), False)
sketch11.addGeometry(Part.LineSegment(Vector(114, 0, 0), Vector(114, -4.5, 0)), False)
sketch11.addGeometry(Part.LineSegment(Vector(114, -4.5, 0), Vector(113.5, -5, 0)), False)
sketch11.addGeometry(Part.LineSegment(Vector(113.5, -5, 0), Vector(10, -5, 0)), False)
sketch11.addConstraint(Sketcher.Constraint("Coincident", 0, 2, 1, 1))
sketch11.addConstraint(Sketcher.Constraint("Coincident", 1, 2, 2, 1))
sketch11.addConstraint(Sketcher.Constraint("Coincident", 2, 2, 3, 1))
sketch11.addConstraint(Sketcher.Constraint("Coincident", 3, 2, 4, 1))
sketch11.addConstraint(Sketcher.Constraint("Coincident", 4, 2, 0, 1))
sketch11.addConstraint(Sketcher.Constraint("Vertical", 0))
sketch11.addConstraint(Sketcher.Constraint("Horizontal", 1))
sketch11.addConstraint(Sketcher.Constraint("Vertical", 2))
sketch11.addConstraint(Sketcher.Constraint("Horizontal", 4))
sketch11.addConstraint(Sketcher.Constraint("PointOnObject", 0, 2, -1))
sketch11.addConstraint(Sketcher.Constraint("DistanceX", 1, 1, 1, 2, 104.0))
sketch11.addConstraint(Sketcher.Constraint("DistanceY", 0, 1, 0, 2, 5.0))
sketch11.addConstraint(Sketcher.Constraint("Angle", 3, Q("-135 deg")))
sketch11.addConstraint(Sketcher.Constraint("DistanceX", 4, 2, 4, 1, 103.5))
sketch11.addConstraint(Sketcher.Constraint("DistanceX", -1, 1, 0, 2, 10.0))
revolution3 = doc.addObject("PartDesign::Revolution", "Revolution002")
body.addObject(revolution3)
revolution3.Profile = sketch11
revolution3.ReferenceAxis = (sketch11, ["H_Axis"])
revolution3.Angle = 360

doc.recompute()
